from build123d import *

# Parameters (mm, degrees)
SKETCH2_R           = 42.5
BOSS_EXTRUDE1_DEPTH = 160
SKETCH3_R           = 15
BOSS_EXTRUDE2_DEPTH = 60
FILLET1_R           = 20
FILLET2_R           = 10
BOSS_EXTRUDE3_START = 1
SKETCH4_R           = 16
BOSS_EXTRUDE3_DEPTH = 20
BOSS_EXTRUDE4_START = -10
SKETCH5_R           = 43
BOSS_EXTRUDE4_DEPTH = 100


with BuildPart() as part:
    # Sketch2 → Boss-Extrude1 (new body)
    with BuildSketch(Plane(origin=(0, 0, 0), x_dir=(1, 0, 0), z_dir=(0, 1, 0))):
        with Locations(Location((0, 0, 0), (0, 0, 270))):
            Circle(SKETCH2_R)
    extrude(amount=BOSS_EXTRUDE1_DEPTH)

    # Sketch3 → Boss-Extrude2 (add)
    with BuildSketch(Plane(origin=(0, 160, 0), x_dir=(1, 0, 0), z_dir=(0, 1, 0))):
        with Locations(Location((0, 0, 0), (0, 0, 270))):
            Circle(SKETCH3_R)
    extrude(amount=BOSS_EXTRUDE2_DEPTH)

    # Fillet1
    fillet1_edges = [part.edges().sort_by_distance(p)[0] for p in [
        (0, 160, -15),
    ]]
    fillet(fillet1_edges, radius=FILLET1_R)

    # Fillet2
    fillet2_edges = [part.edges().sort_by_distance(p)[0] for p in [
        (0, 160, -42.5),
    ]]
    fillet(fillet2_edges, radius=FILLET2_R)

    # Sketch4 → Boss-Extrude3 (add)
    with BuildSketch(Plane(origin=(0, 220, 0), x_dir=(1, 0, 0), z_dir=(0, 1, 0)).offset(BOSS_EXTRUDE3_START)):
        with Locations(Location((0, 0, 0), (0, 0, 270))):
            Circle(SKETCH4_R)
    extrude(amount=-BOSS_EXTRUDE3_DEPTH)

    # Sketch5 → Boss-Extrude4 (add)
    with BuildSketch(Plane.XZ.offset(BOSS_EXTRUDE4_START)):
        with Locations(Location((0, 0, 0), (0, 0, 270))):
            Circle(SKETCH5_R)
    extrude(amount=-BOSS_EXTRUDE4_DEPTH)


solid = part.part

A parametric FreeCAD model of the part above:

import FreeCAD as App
import Part
import Sketcher
Q = App.Units.Quantity


def edges_at(feature, points):
    """Names of the edges that pass closest to the given points."""
    edges = feature.Shape.Edges
    near = lambda p: min(range(len(edges)), key=lambda i: edges[i].distToShape(Part.Vertex(*p))[0])
    return sorted({f"Edge{near(p) + 1}" for p in points})

doc = App.newDocument("Part")
body = doc.addObject("PartDesign::Body", "Body")

# Sketch on XZ plane
sketch1 = doc.addObject("Sketcher::SketchObject", "Sketch")
body.addObject(sketch1)
sketch1.AttachmentSupport = (doc.XZ_Plane, [""])
sketch1.MapMode = "FlatFace"
sketch1.addGeometry(Part.Circle(App.Vector(0, 0, 0), App.Vector(0, 0, 1), 42.5), False)
sketch1.addConstraint([
    Sketcher.Constraint("Coincident", 0, 3, -1, 1),
    Sketcher.Constraint("Diameter", 0, Q("85 mm")),
])
pad1 = doc.addObject("PartDesign::Pad", "Pad")
body.addObject(pad1)
pad1.Profile = sketch1
pad1.Length = 160
pad1.Reversed = True

# Sketch on XZ plane
sketch2 = doc.addObject("Sketcher::SketchObject", "Sketch001")
body.addObject(sketch2)
sketch2.AttachmentSupport = (doc.XZ_Plane, [""])
sketch2.MapMode = "FlatFace"
sketch2.AttachmentOffset = App.Placement(App.Vector(0, 0, -160), App.Rotation())
sketch2.addGeometry(Part.Circle(App.Vector(0, 0, 0), App.Vector(0, 0, 1), 15), False)
sketch2.addConstraint([
    Sketcher.Constraint("Coincident", 0, 3, -1, 1),
    Sketcher.Constraint("Diameter", 0, Q("30 mm")),
])
pad2 = doc.addObject("PartDesign::Pad", "Pad001")
body.addObject(pad2)
pad2.Profile = sketch2
pad2.Length = 60
pad2.Reversed = True
doc.recompute()

fillet = doc.addObject("PartDesign::Fillet", "Fillet")
body.addObject(fillet)
fillet.Base = (pad2, edges_at(pad2, [(0, 160, -15)]))
fillet.Radius = 20
doc.recompute()

fillet2 = doc.addObject("PartDesign::Fillet", "Fillet001")
body.addObject(fillet2)
fillet2.Base = (fillet, edges_at(fillet, [(0, 160, -42.5)]))
fillet2.Radius = 10

# Sketch on XZ plane
sketch3 = doc.addObject("Sketcher::SketchObject", "Sketch002")
body.addObject(sketch3)
sketch3.AttachmentSupport = (doc.XZ_Plane, [""])
sketch3.MapMode = "FlatFace"
sketch3.AttachmentOffset = App.Placement(App.Vector(0, 0, -221), App.Rotation())
sketch3.addGeometry(Part.Circle(App.Vector(0, 0, 0), App.Vector(0, 0, 1), 16), False)
sketch3.addConstraint([
    Sketcher.Constraint("Coincident", 0, 3, -1, 1),
    Sketcher.Constraint("Diameter", 0, Q("32 mm")),
])
pad3 = doc.addObject("PartDesign::Pad", "Pad002")
body.addObject(pad3)
pad3.Profile = sketch3
pad3.Length = 20

# Sketch on XZ plane
sketch4 = doc.addObject("Sketcher::SketchObject", "Sketch003")
body.addObject(sketch4)
sketch4.AttachmentSupport = (doc.XZ_Plane, [""])
sketch4.MapMode = "FlatFace"
sketch4.AttachmentOffset = App.Placement(App.Vector(0, 0, -10), App.Rotation())
sketch4.addGeometry(Part.Circle(App.Vector(0, 0, 0), App.Vector(0, 0, 1), 43), False)
sketch4.addConstraint([
    Sketcher.Constraint("Coincident", 0, 3, -1, 1),
    Sketcher.Constraint("Diameter", 0, Q("86 mm")),
])
pad4 = doc.addObject("PartDesign::Pad", "Pad003")
body.addObject(pad4)
pad4.Profile = sketch4
pad4.Length = 100
pad4.Reversed = True

doc.recompute()
